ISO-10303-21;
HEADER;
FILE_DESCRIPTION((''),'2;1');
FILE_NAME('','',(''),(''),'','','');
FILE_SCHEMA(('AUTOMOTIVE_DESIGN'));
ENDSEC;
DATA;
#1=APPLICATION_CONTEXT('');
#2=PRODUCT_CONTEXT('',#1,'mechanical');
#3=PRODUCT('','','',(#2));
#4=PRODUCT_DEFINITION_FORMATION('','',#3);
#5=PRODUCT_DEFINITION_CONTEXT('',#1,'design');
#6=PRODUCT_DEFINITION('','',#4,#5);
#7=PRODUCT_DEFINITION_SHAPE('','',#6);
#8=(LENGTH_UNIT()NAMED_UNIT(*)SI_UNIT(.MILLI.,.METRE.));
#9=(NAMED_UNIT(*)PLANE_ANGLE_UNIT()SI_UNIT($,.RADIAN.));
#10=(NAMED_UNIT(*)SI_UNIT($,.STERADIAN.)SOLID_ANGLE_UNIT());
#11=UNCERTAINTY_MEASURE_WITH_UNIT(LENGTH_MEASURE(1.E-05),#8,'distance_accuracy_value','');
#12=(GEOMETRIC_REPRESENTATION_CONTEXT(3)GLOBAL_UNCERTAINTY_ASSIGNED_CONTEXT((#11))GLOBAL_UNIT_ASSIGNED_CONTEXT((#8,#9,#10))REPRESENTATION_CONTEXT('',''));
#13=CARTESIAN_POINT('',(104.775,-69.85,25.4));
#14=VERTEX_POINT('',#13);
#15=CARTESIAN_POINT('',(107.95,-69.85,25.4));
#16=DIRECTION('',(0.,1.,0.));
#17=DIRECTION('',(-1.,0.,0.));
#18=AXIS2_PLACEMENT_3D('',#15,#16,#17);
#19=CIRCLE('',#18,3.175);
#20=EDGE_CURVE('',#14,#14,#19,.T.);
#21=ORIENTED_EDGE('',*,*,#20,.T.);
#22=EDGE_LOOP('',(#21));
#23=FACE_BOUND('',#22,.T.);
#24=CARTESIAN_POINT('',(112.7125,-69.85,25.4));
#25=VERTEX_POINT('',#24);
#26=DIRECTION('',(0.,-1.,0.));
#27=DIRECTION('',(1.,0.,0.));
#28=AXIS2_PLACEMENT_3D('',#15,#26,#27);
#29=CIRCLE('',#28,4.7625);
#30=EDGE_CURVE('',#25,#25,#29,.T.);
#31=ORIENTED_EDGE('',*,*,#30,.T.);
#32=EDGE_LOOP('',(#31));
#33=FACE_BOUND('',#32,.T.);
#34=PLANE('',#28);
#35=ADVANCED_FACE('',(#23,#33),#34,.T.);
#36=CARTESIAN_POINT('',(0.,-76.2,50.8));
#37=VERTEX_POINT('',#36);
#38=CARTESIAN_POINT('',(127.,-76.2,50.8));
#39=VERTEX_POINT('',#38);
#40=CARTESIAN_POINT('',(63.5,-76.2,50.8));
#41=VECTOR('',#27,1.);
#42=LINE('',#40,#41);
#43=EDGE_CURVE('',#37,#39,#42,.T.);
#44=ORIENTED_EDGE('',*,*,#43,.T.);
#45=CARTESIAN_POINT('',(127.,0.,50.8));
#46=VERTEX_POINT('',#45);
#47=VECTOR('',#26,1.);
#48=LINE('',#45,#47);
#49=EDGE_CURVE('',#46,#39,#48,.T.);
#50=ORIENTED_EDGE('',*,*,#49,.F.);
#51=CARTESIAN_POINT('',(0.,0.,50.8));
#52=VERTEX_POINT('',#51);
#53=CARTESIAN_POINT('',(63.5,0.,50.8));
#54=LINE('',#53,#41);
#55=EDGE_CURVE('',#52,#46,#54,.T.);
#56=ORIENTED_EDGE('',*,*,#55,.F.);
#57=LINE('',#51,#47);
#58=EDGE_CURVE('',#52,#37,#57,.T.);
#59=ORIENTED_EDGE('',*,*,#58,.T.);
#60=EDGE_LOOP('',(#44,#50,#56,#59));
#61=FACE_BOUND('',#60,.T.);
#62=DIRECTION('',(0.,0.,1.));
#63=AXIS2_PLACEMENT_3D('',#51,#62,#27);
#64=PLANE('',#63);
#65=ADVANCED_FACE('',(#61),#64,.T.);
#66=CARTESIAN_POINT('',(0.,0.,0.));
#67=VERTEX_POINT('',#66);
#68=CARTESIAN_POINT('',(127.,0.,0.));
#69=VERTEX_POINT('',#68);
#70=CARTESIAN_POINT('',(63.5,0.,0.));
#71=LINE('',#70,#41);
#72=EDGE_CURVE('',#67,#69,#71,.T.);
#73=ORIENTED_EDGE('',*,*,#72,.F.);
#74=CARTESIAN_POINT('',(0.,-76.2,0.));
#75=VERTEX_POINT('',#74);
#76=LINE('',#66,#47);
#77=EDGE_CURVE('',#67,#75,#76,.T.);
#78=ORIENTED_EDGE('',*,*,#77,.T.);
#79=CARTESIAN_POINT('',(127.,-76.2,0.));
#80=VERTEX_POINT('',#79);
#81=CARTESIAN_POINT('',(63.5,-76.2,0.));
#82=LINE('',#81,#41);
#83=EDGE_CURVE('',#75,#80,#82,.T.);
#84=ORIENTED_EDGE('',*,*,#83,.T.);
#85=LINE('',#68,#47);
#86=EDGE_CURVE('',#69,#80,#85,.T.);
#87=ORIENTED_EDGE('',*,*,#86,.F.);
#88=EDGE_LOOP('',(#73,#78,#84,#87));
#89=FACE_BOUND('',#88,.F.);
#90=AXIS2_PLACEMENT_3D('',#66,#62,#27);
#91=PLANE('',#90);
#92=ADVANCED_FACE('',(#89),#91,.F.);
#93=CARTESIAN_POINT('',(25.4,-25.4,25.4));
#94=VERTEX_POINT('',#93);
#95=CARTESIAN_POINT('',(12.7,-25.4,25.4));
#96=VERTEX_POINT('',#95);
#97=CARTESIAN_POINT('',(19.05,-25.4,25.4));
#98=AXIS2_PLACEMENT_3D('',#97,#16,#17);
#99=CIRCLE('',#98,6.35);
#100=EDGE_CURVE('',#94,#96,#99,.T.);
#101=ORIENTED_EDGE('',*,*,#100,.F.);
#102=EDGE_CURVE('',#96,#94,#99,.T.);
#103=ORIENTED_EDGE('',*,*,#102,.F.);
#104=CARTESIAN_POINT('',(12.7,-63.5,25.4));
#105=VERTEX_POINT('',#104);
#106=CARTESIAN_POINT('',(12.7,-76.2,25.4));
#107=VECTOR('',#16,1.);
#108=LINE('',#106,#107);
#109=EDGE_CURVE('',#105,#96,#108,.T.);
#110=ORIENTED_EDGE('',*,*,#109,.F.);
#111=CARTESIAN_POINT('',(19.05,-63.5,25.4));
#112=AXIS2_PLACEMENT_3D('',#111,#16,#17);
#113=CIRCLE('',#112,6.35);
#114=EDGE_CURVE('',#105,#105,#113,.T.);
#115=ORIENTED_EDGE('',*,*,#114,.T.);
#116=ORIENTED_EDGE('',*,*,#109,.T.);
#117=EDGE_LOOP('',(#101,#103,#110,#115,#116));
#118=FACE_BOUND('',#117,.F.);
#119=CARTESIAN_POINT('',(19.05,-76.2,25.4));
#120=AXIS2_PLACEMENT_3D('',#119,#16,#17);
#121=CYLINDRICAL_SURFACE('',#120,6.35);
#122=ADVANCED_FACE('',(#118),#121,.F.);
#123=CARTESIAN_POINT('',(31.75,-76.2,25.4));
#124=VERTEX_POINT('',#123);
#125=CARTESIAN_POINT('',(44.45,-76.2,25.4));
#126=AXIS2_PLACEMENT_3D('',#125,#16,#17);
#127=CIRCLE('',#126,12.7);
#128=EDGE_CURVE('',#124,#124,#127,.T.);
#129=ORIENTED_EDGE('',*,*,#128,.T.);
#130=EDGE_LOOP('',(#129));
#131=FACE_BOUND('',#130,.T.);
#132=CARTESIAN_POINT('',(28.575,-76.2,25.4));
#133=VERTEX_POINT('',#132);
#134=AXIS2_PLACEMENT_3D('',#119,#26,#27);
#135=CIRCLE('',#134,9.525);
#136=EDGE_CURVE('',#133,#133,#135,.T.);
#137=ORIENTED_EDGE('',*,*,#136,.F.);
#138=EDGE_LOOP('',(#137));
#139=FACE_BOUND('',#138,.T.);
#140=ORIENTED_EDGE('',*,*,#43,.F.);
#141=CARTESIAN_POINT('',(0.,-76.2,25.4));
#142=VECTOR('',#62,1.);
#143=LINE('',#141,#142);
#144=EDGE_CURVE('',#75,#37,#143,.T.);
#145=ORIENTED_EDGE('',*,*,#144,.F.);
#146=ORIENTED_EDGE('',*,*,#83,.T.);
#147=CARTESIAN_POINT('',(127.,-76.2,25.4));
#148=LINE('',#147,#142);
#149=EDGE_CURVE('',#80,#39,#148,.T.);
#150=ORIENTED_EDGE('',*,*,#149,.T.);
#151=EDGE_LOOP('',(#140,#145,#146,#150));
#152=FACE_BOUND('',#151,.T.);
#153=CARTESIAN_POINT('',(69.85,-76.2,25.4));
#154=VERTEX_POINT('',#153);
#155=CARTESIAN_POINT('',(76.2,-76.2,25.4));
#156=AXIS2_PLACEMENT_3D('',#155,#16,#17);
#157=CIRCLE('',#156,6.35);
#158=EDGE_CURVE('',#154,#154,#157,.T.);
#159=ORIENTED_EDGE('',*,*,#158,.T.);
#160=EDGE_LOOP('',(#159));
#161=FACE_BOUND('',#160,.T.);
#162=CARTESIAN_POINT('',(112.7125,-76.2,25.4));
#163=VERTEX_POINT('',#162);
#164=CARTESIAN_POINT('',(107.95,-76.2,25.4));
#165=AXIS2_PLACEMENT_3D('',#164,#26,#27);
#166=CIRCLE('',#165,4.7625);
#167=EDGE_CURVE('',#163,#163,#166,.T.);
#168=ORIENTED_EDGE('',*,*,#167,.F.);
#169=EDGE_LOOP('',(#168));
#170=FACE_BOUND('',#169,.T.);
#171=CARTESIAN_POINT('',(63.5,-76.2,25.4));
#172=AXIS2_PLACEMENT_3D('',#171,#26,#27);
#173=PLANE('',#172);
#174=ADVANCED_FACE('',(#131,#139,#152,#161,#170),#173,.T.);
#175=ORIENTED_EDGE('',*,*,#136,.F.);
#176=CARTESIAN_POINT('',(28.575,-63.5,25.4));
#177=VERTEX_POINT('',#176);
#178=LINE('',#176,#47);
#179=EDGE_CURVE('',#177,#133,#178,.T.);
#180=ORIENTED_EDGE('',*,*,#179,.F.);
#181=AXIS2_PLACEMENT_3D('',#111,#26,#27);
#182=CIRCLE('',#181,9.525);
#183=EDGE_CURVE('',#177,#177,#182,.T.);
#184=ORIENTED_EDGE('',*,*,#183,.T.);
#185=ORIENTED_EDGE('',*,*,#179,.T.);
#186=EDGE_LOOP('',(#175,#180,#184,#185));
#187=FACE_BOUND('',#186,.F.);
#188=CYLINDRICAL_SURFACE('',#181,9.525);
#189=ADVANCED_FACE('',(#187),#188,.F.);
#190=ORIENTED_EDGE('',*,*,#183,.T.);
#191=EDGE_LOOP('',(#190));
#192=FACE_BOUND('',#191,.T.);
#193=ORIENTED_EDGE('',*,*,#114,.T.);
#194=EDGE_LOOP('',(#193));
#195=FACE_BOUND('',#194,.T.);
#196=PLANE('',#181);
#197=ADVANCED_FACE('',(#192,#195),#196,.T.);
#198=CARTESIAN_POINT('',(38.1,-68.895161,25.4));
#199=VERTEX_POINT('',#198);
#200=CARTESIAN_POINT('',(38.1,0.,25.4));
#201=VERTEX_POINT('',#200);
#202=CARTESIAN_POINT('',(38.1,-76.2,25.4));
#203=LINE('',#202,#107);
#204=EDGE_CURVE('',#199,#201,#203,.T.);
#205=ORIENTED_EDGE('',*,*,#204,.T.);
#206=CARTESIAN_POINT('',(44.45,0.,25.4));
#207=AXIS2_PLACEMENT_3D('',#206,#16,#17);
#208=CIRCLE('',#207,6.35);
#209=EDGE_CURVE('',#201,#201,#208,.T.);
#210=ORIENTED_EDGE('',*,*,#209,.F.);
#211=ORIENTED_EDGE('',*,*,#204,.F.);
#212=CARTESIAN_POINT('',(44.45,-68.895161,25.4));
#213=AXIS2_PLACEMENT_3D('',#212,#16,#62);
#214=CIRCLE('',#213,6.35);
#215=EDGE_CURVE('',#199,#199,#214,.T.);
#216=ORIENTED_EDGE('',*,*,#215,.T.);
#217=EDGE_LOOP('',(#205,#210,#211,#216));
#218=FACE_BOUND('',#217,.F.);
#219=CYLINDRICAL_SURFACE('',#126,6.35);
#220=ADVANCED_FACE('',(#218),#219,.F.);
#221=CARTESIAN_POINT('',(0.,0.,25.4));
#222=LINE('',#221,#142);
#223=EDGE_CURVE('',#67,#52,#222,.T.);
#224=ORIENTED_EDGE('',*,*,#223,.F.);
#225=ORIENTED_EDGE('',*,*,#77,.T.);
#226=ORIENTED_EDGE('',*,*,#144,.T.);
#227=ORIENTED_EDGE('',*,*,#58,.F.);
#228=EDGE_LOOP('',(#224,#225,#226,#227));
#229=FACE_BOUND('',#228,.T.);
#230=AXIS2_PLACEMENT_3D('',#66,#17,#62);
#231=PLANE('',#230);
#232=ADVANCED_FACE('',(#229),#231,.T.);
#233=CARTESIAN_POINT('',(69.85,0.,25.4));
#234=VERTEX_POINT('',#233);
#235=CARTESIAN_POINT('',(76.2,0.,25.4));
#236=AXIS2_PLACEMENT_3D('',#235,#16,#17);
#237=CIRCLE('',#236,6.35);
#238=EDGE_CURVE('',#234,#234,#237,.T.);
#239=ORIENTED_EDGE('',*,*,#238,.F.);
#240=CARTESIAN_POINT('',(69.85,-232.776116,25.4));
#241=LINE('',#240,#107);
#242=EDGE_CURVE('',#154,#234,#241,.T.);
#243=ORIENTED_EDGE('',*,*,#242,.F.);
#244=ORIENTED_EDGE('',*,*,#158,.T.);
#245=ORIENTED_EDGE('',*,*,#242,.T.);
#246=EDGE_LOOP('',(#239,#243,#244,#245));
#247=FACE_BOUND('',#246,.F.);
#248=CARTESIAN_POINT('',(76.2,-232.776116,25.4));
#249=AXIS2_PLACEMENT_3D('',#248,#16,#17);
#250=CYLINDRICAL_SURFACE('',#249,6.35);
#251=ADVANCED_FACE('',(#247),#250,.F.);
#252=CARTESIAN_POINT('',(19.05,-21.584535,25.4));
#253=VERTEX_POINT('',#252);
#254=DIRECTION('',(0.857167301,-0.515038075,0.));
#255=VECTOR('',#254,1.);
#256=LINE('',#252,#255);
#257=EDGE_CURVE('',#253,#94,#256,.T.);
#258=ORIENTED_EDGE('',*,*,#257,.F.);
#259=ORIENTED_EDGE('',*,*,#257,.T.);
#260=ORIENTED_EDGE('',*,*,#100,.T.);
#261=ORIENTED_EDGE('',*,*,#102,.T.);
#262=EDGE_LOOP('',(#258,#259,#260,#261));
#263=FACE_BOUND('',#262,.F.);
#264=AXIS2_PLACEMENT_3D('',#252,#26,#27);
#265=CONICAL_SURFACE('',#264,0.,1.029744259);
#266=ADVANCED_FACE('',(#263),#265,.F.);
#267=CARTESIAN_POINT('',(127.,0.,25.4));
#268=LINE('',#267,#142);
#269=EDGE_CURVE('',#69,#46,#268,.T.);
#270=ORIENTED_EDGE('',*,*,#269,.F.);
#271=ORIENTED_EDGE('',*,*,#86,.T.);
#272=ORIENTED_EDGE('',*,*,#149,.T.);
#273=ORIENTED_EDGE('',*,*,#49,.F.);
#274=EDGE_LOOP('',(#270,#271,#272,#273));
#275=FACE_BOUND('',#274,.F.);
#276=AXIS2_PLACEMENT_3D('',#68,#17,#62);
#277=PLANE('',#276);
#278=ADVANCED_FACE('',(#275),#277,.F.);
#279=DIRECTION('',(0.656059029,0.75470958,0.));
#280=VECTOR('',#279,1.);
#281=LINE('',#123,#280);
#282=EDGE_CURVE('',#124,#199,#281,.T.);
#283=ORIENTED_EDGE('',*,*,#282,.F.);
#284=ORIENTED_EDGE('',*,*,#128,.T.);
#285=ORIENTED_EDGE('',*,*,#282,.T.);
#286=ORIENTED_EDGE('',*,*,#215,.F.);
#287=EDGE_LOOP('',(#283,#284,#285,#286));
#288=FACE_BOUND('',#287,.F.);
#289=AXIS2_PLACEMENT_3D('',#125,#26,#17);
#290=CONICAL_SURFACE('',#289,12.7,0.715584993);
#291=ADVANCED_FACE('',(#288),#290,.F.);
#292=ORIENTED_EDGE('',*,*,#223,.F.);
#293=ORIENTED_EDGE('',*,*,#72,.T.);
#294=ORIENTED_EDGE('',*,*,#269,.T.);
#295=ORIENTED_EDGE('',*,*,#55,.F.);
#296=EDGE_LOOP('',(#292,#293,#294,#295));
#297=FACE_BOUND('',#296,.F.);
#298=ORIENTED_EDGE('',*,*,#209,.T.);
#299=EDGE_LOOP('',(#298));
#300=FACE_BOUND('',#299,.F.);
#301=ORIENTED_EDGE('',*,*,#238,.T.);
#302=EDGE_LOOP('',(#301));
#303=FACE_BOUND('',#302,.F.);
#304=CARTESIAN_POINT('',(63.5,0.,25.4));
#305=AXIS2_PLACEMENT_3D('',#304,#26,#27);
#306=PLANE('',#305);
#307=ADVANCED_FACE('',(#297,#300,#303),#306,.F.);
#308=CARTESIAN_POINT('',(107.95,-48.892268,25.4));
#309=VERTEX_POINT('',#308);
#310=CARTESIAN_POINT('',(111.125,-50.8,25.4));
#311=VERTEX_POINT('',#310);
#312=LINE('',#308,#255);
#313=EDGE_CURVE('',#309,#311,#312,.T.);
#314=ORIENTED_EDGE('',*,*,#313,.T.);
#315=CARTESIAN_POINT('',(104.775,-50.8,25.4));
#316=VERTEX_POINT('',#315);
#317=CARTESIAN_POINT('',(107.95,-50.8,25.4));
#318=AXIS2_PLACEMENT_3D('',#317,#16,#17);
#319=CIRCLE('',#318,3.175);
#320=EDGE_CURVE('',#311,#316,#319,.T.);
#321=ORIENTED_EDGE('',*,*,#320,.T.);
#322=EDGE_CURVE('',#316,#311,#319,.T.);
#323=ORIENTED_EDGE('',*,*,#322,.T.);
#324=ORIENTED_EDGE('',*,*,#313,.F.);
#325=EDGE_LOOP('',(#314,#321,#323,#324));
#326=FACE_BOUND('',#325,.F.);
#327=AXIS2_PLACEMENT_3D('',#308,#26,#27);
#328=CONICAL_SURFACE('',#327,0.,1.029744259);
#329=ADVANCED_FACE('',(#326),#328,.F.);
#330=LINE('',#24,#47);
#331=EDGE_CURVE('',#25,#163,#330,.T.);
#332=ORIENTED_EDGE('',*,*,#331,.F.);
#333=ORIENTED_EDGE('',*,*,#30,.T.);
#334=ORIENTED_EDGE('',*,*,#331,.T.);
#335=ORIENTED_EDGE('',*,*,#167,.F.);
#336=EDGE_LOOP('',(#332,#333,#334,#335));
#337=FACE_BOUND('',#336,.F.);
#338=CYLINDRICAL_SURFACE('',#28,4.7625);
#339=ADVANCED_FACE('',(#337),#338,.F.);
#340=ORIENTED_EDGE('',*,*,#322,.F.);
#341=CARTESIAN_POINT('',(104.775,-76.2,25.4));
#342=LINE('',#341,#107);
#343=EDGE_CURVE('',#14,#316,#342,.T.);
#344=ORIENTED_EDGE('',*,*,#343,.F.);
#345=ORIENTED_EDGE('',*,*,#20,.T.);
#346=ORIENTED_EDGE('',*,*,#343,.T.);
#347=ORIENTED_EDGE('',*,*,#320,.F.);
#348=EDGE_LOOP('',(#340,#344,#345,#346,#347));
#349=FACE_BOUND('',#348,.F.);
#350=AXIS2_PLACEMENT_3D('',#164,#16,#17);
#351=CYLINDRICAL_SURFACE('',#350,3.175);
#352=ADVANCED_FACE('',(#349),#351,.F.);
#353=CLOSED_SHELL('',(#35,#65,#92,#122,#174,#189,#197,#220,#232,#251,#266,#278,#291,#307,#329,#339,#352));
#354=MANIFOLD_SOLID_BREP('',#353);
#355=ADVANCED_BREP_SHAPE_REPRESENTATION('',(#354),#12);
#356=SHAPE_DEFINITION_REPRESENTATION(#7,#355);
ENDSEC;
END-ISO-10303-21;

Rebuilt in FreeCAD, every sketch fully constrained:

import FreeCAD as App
import Part
import Sketcher
Q = App.Units.Quantity

doc = App.newDocument("Part")
body = doc.addObject("PartDesign::Body", "Body")

# Sketch on XZ plane
sketch1 = doc.addObject("Sketcher::SketchObject", "Sketch")
body.addObject(sketch1)
sketch1.AttachmentSupport = (doc.XZ_Plane, [""])
sketch1.MapMode = "FlatFace"
sketch1.addGeometry(Part.LineSegment(App.Vector(0, 50.8, 0), App.Vector(0, 0, 0)), False)
sketch1.addGeometry(Part.LineSegment(App.Vector(0, 0, 0), App.Vector(127, 0, 0)), False)
sketch1.addGeometry(Part.LineSegment(App.Vector(127, 0, 0), App.Vector(127, 50.8, 0)), False)
sketch1.addGeometry(Part.LineSegment(App.Vector(127, 50.8, 0), App.Vector(0, 50.8, 0)), False)
sketch1.addConstraint(Sketcher.Constraint("Coincident", 0, 2, 1, 1))
sketch1.addConstraint(Sketcher.Constraint("Coincident", 1, 2, 2, 1))
sketch1.addConstraint(Sketcher.Constraint("Coincident", 2, 2, 3, 1))
sketch1.addConstraint(Sketcher.Constraint("Coincident", 3, 2, 0, 1))
sketch1.addConstraint(Sketcher.Constraint("Vertical", 0))
sketch1.addConstraint(Sketcher.Constraint("Horizontal", 1))
sketch1.addConstraint(Sketcher.Constraint("Vertical", 2))
sketch1.addConstraint(Sketcher.Constraint("Horizontal", 3))
sketch1.addConstraint(Sketcher.Constraint("Coincident", 0, 2, -1, 1))
sketch1.addConstraint(Sketcher.Constraint("DistanceX", 1, 1, 1, 2, Q("5 in")))
sketch1.addConstraint(Sketcher.Constraint("DistanceY", 0, 2, 0, 1, Q("2 in")))
pad1 = doc.addObject("PartDesign::Pad", "Pad")
body.addObject(pad1)
pad1.Profile = sketch1
pad1.Length = Q("3 in")

# Sketch on XZ plane
sketch2 = doc.addObject("Sketcher::SketchObject", "Sketch001")
body.addObject(sketch2)
sketch2.AttachmentSupport = (doc.XZ_Plane, [""])
sketch2.MapMode = "FlatFace"
sketch2.AttachmentOffset = App.Placement(App.Vector(0, 0, 3 * 25.4), App.Rotation())
sketch2.addGeometry(Part.Circle(App.Vector(19.05, 25.4, 0), App.Vector(0, 0, 1), 6.35), False)
sketch2.addConstraint(Sketcher.Constraint("Diameter", 0, Q("0.5 in")))
sketch2.addConstraint(Sketcher.Constraint("DistanceY", -1, 1, 0, 3, Q("1 in")))
sketch2.addConstraint(Sketcher.Constraint("DistanceX", -1, 1, 0, 3, Q("0.75 in")))
doc.recompute()
hole = doc.addObject("PartDesign::Hole", "Hole")
body.addObject(hole)
hole.Profile = sketch2
hole.ThreadType = "None"
hole.Diameter = Q("0.5 in")
hole.DepthType = "Dimension"
hole.Depth = Q("2 in")
hole.DrillPoint = "Angled"
hole.DrillPointAngle = 118
hole.HoleCutType = "Counterbore"
hole.HoleCutDiameter = Q("0.75 in")
hole.HoleCutDepth = Q("0.5 in")

# Sketch on XZ plane
sketch3 = doc.addObject("Sketcher::SketchObject", "Sketch002")
body.addObject(sketch3)
sketch3.AttachmentSupport = (doc.XZ_Plane, [""])
sketch3.MapMode = "FlatFace"
sketch3.AttachmentOffset = App.Placement(App.Vector(0, 0, 3 * 25.4), App.Rotation())
sketch3.addGeometry(Part.Circle(App.Vector(44.45, 25.4, 0), App.Vector(0, 0, 1), 6.35), False)
sketch3.addConstraint(Sketcher.Constraint("Diameter", 0, Q("0.5 in")))
sketch3.addConstraint(Sketcher.Constraint("DistanceY", -1, 1, 0, 3, Q("1 in")))
sketch3.addConstraint(Sketcher.Constraint("DistanceX", -1, 1, 0, 3, Q("1.75 in")))
doc.recompute()
hole2 = doc.addObject("PartDesign::Hole", "Hole001")
body.addObject(hole2)
hole2.Profile = sketch3
hole2.ThreadType = "None"
hole2.Diameter = Q("0.5 in")
hole2.DepthType = "ThroughAll"
hole2.HoleCutType = "Countersink"
hole2.HoleCutDiameter = Q("1 in")
hole2.HoleCutCountersinkAngle = 82

# Sketch on XZ plane
sketch4 = doc.addObject("Sketcher::SketchObject", "Sketch003")
body.addObject(sketch4)
sketch4.AttachmentSupport = (doc.XZ_Plane, [""])
sketch4.MapMode = "FlatFace"
sketch4.AttachmentOffset = App.Placement(App.Vector(0, 0, 3 * 25.4), App.Rotation())
sketch4.addGeometry(Part.Circle(App.Vector(76.2, 25.4, 0), App.Vector(0, 0, 1), 6.35), False)
sketch4.addConstraint(Sketcher.Constraint("Diameter", 0, Q("0.5 in")))
sketch4.addConstraint(Sketcher.Constraint("DistanceX", -1, 1, 0, 3, Q("3 in")))
sketch4.addConstraint(Sketcher.Constraint("DistanceY", -1, 1, 0, 3, Q("1 in")))
doc.recompute()
hole3 = doc.addObject("PartDesign::Hole", "Hole002")
body.addObject(hole3)
hole3.Profile = sketch4
hole3.ThreadType = "None"
hole3.Diameter = Q("0.5 in")
hole3.DepthType = "ThroughAll"

# Sketch on XZ plane
sketch5 = doc.addObject("Sketcher::SketchObject", "Sketch004")
body.addObject(sketch5)
sketch5.AttachmentSupport = (doc.XZ_Plane, [""])
sketch5.MapMode = "FlatFace"
sketch5.AttachmentOffset = App.Placement(App.Vector(0, 0, 3 * 25.4), App.Rotation())
sketch5.addGeometry(Part.Circle(App.Vector(107.95, 25.4, 0), App.Vector(0, 0, 1), 3.175), False)
sketch5.addConstraint(Sketcher.Constraint("Diameter", 0, Q("0.25 in")))
sketch5.addConstraint(Sketcher.Constraint("DistanceY", -1, 1, 0, 3, Q("1 in")))
sketch5.addConstraint(Sketcher.Constraint("DistanceX", -1, 1, 0, 3, Q("4.25 in")))
doc.recompute()
hole4 = doc.addObject("PartDesign::Hole", "Hole003")
body.addObject(hole4)
hole4.Profile = sketch5
hole4.ThreadType = "None"
hole4.Diameter = Q("0.25 in")
hole4.DepthType = "Dimension"
hole4.Depth = Q("1 in")
hole4.DrillPoint = "Angled"
hole4.DrillPointAngle = 118
hole4.HoleCutType = "Counterbore"
hole4.HoleCutDiameter = Q("0.375 in")
hole4.HoleCutDepth = Q("0.25 in")

doc.recompute()
